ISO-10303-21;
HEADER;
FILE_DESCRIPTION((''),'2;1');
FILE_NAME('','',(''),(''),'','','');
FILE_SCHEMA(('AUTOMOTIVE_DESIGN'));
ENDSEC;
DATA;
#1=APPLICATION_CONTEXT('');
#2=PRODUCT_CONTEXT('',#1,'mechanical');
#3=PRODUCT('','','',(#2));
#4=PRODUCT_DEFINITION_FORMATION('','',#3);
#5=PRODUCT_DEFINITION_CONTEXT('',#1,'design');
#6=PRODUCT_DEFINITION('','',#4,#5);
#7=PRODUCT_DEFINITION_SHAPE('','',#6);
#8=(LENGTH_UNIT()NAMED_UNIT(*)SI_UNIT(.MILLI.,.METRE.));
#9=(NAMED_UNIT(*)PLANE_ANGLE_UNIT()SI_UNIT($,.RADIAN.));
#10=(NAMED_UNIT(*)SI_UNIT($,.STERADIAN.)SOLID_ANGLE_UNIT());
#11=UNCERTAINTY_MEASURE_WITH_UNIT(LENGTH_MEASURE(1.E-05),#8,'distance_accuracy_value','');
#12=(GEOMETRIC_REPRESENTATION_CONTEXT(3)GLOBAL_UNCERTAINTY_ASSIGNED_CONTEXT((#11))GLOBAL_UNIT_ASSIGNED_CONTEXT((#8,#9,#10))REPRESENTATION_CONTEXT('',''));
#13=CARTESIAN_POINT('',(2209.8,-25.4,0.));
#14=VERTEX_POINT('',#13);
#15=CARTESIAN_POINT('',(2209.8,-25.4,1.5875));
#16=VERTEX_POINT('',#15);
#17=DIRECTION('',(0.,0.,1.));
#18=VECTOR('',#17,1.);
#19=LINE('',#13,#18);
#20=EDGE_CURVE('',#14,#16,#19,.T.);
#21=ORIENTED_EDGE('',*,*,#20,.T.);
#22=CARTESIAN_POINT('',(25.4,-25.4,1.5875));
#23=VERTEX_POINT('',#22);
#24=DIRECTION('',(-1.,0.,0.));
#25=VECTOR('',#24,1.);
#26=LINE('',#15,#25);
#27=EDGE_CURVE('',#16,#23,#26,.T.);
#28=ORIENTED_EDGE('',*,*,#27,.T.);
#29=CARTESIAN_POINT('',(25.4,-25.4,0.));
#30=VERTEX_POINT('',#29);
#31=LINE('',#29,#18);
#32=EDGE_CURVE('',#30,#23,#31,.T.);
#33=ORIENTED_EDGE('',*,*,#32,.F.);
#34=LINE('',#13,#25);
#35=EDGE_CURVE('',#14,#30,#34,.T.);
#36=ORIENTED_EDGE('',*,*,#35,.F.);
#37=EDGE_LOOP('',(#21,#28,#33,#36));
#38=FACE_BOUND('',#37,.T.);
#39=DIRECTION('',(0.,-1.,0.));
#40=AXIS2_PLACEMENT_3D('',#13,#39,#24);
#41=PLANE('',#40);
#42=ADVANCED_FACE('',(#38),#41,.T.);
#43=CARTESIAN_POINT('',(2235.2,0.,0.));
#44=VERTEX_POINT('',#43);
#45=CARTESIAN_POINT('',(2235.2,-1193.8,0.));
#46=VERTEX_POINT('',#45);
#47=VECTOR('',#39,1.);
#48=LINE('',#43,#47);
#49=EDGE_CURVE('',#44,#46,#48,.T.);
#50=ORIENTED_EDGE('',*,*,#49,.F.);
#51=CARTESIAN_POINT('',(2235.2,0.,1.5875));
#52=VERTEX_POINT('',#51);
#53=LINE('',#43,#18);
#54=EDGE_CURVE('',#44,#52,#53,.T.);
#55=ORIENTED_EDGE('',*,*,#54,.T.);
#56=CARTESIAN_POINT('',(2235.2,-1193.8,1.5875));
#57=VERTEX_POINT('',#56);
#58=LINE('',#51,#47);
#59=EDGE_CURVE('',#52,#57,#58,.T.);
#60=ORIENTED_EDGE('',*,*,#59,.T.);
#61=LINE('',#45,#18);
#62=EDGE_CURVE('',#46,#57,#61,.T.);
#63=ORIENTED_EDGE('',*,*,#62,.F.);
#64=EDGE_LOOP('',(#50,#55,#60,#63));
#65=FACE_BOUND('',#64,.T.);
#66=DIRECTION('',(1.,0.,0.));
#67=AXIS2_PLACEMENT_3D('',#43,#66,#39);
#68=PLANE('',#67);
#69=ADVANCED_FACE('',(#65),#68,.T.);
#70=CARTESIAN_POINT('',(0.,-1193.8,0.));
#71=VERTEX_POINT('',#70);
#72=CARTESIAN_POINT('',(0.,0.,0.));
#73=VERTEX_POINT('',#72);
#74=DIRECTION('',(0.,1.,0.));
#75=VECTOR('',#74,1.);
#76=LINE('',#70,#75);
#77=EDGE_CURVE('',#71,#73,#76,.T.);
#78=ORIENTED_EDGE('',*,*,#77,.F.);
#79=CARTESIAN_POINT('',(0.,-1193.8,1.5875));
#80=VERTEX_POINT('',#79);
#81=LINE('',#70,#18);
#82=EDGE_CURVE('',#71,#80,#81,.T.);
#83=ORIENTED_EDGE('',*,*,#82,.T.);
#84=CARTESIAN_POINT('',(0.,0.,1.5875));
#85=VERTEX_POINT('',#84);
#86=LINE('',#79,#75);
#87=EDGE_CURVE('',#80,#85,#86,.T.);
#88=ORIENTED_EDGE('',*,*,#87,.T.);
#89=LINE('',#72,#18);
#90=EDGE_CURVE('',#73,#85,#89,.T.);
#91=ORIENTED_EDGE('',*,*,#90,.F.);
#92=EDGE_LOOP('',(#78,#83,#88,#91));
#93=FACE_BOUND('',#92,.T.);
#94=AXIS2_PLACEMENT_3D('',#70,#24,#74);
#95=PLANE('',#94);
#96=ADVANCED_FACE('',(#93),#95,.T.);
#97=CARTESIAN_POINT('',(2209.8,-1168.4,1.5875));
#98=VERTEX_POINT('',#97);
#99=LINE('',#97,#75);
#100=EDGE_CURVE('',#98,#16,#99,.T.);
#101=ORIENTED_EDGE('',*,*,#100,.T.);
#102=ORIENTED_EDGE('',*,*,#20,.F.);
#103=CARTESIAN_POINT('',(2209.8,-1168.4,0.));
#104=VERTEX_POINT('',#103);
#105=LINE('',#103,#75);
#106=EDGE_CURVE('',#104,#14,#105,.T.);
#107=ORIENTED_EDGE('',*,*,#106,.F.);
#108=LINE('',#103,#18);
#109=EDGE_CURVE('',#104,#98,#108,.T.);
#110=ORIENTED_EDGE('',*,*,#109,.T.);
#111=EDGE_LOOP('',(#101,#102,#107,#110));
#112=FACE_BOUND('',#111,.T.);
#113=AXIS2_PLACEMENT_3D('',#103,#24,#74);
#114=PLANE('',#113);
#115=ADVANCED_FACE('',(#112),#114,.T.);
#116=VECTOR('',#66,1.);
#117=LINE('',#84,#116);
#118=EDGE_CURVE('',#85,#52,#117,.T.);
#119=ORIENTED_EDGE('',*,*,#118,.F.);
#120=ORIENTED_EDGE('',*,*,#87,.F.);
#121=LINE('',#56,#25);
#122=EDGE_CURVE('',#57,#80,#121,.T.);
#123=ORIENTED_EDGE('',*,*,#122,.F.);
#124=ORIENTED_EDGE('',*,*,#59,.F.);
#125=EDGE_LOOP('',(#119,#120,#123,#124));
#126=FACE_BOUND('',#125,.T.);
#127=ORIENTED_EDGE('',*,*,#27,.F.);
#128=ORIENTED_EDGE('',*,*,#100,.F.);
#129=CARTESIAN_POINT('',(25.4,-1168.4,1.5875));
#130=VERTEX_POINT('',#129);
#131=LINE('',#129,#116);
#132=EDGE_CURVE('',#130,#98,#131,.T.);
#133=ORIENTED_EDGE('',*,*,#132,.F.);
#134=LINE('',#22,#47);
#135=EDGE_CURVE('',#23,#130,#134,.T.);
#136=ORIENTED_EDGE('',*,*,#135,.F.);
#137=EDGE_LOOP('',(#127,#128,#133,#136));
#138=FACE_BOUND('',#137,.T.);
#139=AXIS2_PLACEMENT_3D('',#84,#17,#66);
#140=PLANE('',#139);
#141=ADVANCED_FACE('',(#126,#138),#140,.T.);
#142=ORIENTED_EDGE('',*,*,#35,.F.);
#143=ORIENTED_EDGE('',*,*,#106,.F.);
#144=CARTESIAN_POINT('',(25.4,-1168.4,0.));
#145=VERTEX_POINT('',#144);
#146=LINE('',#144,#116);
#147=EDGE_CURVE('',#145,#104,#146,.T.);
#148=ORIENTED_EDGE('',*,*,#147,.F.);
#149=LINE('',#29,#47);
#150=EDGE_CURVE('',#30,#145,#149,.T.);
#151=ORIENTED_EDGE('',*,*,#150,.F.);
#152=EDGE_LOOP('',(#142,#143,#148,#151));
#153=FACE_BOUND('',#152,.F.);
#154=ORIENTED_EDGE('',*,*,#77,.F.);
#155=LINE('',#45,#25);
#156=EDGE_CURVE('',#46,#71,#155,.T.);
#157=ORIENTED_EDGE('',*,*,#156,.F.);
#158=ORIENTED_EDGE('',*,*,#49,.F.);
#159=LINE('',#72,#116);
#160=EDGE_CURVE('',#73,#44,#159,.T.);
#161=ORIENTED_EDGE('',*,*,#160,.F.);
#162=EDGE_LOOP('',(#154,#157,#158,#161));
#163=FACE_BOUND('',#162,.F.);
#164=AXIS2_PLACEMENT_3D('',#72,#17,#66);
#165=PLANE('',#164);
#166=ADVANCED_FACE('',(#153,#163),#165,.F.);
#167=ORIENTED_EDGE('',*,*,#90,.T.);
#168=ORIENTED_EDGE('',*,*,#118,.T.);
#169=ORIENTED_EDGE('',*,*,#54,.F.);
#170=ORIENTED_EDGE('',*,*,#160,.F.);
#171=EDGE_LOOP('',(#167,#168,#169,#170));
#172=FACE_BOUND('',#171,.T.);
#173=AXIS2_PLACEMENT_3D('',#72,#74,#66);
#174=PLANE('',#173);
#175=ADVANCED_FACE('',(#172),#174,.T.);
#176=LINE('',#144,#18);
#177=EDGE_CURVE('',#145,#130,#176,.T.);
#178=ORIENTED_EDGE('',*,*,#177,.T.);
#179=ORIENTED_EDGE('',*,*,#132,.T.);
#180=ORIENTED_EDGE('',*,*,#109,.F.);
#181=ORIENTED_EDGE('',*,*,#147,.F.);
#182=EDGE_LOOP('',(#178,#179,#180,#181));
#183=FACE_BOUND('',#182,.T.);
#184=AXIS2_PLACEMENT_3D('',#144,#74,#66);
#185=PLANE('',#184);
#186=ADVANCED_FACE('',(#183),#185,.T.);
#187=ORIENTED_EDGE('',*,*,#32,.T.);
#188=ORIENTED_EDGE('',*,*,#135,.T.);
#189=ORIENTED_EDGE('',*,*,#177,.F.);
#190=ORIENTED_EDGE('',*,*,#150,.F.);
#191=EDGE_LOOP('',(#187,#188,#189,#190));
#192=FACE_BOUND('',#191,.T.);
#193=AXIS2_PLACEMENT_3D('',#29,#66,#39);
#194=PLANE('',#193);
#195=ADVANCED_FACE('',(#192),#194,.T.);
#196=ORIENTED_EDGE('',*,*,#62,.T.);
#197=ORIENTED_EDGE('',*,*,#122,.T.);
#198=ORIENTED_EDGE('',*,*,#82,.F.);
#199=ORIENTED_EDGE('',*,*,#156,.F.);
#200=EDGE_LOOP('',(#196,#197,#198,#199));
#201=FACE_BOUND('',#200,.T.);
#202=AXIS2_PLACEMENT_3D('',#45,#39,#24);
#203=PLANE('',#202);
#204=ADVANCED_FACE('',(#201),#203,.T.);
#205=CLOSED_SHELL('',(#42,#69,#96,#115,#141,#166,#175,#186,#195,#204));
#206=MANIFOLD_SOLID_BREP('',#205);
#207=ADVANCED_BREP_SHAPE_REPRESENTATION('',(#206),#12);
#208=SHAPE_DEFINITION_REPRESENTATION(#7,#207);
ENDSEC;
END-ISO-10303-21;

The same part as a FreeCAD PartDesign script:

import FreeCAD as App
import Part
import Sketcher
Q = App.Units.Quantity

doc = App.newDocument("Part")
body = doc.addObject("PartDesign::Body", "Body")

sketch1 = body.newObject("Sketcher::SketchObject", "Sketch")
sketch1.AttachmentSupport = (doc.getObject("XY_Plane"), [""])
sketch1.MapMode = "FlatFace"
sketch1.addGeometry([
    Part.LineSegment(App.Vector(2235, 0, 0), App.Vector(0, 0, 0)),
    Part.LineSegment(App.Vector(0, 0, 0), App.Vector(0, -1194, 0)),
    Part.LineSegment(App.Vector(0, -1194, 0), App.Vector(2235, -1194, 0)),
    Part.LineSegment(App.Vector(2235, -1194, 0), App.Vector(2235, 0, 0)),
    Part.LineSegment(App.Vector(25, -25, 0), App.Vector(2210, -25, 0)),
    Part.LineSegment(App.Vector(2210, -25, 0), App.Vector(2210, -1168, 0)),
    Part.LineSegment(App.Vector(2210, -1168, 0), App.Vector(25, -1168, 0)),
    Part.LineSegment(App.Vector(25, -1168, 0), App.Vector(25, -25, 0)),
], False)
sketch1.addConstraint([
    Sketcher.Constraint("Coincident", 0, 2, 1, 1),
    Sketcher.Constraint("Coincident", 1, 2, 2, 1),
    Sketcher.Constraint("Coincident", 2, 2, 3, 1),
    Sketcher.Constraint("Coincident", 3, 2, 0, 1),
    Sketcher.Constraint("Coincident", 4, 2, 5, 1),
    Sketcher.Constraint("Coincident", 5, 2, 6, 1),
    Sketcher.Constraint("Coincident", 6, 2, 7, 1),
    Sketcher.Constraint("Coincident", 7, 2, 4, 1),
    Sketcher.Constraint("Horizontal", 0),
    Sketcher.Constraint("Vertical", 1),
    Sketcher.Constraint("Horizontal", 2),
    Sketcher.Constraint("Vertical", 3),
    Sketcher.Constraint("Horizontal", 4),
    Sketcher.Constraint("Vertical", 5),
    Sketcher.Constraint("Horizontal", 6),
    Sketcher.Constraint("Vertical", 7),
    Sketcher.Constraint("Coincident", 0, 2, -1, 1),
    Sketcher.Constraint("DistanceX", 0, 2, 0, 1, Q("88 in")),
    Sketcher.Constraint("DistanceY", 1, 2, 1, 1, Q("47 in")),
    Sketcher.Constraint("DistanceY", 4, 2, -1, 1, Q("1 in")),
    Sketcher.Constraint("DistanceX", -1, 1, 6, 2, Q("1 in")),
    Sketcher.Constraint("DistanceX", 4, 2, 3, 2, Q("1 in")),
    Sketcher.Constraint("DistanceY", 2, 2, 5, 2, Q("1 in")),
])
pad1 = body.newObject("PartDesign::Pad", "Pad")
pad1.Profile = sketch1
pad1.Length = Q("0.0625 in")

doc.recompute()
